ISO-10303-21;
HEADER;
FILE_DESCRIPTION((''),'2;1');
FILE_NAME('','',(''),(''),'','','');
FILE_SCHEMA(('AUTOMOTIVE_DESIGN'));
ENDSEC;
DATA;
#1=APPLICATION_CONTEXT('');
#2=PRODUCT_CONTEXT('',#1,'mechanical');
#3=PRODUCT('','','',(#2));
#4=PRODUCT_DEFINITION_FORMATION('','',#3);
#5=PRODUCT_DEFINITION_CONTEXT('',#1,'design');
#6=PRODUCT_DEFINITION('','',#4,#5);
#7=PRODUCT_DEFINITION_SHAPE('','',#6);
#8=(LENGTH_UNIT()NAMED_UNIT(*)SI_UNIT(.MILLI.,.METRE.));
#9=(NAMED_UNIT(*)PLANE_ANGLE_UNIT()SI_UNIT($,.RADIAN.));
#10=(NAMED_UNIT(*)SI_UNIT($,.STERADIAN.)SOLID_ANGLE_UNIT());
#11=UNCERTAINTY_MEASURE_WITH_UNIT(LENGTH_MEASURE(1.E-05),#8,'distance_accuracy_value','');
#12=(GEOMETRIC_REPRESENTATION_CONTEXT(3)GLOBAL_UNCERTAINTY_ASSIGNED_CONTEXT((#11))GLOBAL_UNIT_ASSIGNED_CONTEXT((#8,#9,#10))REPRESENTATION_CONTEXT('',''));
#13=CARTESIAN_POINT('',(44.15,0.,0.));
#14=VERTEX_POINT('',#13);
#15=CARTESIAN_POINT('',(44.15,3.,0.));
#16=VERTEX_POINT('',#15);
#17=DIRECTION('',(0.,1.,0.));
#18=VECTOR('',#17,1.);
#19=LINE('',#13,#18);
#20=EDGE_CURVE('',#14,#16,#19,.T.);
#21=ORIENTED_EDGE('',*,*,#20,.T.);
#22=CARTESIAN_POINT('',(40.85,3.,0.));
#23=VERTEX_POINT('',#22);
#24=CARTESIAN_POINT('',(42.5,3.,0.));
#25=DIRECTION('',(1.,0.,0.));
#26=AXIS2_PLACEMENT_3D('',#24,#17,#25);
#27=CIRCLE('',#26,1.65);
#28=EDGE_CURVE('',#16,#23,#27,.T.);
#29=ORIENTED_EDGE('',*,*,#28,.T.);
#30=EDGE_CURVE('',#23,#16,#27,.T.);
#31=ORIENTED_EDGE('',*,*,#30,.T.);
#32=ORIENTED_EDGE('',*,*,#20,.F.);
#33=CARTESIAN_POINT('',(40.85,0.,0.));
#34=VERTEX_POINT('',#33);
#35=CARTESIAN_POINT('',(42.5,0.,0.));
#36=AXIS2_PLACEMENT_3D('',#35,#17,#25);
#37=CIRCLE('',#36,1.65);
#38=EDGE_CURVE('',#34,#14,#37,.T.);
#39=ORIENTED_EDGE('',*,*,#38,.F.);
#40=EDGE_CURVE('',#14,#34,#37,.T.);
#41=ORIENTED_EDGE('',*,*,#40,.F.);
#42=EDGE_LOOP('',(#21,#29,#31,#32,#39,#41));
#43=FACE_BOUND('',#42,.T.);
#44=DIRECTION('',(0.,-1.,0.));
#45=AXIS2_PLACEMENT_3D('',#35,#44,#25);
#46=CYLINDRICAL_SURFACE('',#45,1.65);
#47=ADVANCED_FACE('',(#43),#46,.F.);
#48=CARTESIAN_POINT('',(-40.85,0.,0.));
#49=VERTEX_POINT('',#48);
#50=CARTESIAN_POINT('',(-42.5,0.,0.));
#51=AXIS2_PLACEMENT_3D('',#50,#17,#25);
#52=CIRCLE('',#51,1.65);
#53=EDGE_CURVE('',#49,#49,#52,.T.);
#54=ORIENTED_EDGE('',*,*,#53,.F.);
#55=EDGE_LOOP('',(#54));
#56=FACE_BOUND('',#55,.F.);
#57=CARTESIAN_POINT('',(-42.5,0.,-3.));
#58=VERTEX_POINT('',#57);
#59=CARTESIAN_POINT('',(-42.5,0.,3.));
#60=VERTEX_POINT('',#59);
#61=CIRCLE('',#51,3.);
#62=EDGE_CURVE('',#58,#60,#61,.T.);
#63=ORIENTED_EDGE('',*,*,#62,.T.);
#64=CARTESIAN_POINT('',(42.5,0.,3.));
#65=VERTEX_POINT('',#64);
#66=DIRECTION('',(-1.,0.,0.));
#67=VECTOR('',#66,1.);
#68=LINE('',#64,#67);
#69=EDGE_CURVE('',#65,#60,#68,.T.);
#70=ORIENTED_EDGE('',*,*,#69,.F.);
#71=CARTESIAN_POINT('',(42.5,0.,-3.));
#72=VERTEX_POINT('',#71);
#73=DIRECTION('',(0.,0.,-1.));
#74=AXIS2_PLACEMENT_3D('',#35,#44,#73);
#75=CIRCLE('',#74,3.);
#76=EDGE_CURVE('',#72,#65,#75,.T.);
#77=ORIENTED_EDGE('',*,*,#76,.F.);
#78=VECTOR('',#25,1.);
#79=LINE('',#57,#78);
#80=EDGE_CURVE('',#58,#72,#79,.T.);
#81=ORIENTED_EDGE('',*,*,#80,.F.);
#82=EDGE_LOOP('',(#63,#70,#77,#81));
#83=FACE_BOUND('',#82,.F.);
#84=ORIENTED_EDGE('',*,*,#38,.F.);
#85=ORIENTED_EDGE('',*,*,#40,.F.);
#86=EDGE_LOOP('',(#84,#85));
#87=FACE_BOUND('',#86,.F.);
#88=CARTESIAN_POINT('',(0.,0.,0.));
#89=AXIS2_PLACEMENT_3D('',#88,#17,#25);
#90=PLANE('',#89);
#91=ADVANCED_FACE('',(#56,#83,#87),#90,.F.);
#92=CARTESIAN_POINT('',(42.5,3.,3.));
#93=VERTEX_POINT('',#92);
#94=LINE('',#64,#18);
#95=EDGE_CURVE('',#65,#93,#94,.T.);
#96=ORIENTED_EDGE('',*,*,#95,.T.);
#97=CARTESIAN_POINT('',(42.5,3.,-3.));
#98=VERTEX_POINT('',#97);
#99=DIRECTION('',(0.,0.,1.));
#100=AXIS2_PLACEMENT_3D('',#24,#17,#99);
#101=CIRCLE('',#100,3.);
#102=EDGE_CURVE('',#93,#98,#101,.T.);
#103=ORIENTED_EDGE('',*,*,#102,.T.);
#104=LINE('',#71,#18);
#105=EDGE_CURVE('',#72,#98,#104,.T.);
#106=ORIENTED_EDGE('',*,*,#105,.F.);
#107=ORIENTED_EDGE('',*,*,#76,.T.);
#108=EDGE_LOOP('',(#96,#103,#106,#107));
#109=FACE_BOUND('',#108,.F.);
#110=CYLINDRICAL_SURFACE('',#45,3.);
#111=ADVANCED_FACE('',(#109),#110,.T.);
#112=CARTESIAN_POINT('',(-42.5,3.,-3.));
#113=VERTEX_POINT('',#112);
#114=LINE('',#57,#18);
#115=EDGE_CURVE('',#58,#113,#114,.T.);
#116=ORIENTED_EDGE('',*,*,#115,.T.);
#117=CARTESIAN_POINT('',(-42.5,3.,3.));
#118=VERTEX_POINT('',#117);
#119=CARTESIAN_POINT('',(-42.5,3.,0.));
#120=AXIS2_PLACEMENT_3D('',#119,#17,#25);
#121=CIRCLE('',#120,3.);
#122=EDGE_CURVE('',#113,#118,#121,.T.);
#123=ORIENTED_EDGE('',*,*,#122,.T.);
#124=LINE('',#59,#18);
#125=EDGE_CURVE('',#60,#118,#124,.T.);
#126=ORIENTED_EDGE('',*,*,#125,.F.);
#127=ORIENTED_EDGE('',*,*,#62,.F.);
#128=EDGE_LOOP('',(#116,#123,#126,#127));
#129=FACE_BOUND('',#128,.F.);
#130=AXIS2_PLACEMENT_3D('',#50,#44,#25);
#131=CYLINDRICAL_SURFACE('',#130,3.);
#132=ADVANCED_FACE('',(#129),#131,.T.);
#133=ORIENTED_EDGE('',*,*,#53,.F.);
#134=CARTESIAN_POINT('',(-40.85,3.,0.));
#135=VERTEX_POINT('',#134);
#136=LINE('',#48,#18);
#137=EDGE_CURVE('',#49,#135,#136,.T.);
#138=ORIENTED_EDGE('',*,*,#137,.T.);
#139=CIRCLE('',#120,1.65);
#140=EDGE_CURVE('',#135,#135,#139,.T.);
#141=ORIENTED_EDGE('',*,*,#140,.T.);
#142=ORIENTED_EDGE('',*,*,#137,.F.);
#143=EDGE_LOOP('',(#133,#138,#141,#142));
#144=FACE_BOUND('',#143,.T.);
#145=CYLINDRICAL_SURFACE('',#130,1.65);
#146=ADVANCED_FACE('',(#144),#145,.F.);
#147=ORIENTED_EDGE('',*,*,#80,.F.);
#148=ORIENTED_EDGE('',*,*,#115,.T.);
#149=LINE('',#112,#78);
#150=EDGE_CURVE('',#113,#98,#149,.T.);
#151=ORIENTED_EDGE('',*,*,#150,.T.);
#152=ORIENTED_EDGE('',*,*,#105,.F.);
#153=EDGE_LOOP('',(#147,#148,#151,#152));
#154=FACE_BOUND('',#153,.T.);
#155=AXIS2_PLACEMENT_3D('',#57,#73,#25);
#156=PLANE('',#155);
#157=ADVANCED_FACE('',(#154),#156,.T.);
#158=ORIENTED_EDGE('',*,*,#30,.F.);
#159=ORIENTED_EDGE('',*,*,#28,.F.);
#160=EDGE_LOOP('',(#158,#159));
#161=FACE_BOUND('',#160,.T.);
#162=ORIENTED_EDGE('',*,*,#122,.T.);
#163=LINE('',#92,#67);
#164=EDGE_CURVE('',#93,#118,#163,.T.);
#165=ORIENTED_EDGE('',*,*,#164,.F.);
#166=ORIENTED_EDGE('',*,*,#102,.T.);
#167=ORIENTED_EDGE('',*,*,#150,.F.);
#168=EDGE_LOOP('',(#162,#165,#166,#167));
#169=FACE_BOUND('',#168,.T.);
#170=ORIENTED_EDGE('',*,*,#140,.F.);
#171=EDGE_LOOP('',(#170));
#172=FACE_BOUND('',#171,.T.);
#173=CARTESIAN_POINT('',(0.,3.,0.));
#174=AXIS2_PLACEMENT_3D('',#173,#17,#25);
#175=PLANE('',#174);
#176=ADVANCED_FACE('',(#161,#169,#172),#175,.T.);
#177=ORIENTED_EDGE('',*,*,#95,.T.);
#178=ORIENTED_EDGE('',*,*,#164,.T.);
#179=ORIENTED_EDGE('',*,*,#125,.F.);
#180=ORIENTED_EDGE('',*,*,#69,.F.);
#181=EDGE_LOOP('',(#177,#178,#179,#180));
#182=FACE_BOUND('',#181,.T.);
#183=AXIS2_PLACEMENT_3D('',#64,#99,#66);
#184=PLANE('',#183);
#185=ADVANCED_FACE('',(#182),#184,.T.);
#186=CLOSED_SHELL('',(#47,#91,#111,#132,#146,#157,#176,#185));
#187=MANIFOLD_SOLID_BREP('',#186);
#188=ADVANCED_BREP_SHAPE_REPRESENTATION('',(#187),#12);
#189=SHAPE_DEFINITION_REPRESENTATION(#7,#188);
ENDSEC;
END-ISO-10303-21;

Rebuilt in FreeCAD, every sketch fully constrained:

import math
import FreeCAD as App
import Part
import Sketcher

V = App.Vector
Q = App.Units.Quantity

doc = App.newDocument("Part")
body = doc.addObject("PartDesign::Body", "Body")

# Sketch on XZ plane
sketch1 = body.newObject("Sketcher::SketchObject", "Sketch")
sketch1.AttachmentSupport = (doc.getObject("XZ_Plane"), [""])
sketch1.MapMode = "FlatFace"
sketch1.addGeometry([
    Part.ArcOfCircle(Part.Circle(V(-42.5, 0, 0), V(0, 0, 1), 3), math.radians(90), math.radians(270)),  # 0
    Part.LineSegment(V(-42.5, 3, 0), V(42.5, 3, 0)),  # 1
    Part.ArcOfCircle(Part.Circle(V(42.5, 0, 0), V(0, 0, 1), 3), math.radians(-90), math.radians(90)),  # 2
    Part.LineSegment(V(42.5, -3, 0), V(-42.5, -3, 0)),  # 3
    Part.Circle(V(-42.5, 0, 0), V(0, 0, 1), 1.65),  # 4
    Part.Circle(V(42.5, 0, 0), V(0, 0, 1), 1.65),  # 5
], False)
sketch1.addConstraint([
    Sketcher.Constraint("Tangent", 0, 1, 1, 1),
    Sketcher.Constraint("Tangent", 1, 2, 2, 2),
    Sketcher.Constraint("Tangent", 2, 1, 3, 1),
    Sketcher.Constraint("Tangent", 3, 2, 0, 2),
    Sketcher.Constraint("Horizontal", 1),
    Sketcher.Constraint("Horizontal", 3),
    Sketcher.Constraint("Coincident", 4, 3, 0, 3),
    Sketcher.Constraint("Coincident", 5, 3, 2, 3),
    Sketcher.Constraint("Equal", 4, 5),
    Sketcher.Constraint("Symmetric", 0, 3, 2, 3, -1, 1),
    Sketcher.Constraint("Radius", 0, Q("3 mm")),
    Sketcher.Constraint("Diameter", 4, Q("3.3 mm")),
    Sketcher.Constraint("DistanceX", 1, 1, 1, 2, Q("85 mm")),
])
pad1 = body.newObject("PartDesign::Pad", "Pad")
pad1.Profile = sketch1
pad1.Length = 3
pad1.Reversed = True

doc.recompute()
